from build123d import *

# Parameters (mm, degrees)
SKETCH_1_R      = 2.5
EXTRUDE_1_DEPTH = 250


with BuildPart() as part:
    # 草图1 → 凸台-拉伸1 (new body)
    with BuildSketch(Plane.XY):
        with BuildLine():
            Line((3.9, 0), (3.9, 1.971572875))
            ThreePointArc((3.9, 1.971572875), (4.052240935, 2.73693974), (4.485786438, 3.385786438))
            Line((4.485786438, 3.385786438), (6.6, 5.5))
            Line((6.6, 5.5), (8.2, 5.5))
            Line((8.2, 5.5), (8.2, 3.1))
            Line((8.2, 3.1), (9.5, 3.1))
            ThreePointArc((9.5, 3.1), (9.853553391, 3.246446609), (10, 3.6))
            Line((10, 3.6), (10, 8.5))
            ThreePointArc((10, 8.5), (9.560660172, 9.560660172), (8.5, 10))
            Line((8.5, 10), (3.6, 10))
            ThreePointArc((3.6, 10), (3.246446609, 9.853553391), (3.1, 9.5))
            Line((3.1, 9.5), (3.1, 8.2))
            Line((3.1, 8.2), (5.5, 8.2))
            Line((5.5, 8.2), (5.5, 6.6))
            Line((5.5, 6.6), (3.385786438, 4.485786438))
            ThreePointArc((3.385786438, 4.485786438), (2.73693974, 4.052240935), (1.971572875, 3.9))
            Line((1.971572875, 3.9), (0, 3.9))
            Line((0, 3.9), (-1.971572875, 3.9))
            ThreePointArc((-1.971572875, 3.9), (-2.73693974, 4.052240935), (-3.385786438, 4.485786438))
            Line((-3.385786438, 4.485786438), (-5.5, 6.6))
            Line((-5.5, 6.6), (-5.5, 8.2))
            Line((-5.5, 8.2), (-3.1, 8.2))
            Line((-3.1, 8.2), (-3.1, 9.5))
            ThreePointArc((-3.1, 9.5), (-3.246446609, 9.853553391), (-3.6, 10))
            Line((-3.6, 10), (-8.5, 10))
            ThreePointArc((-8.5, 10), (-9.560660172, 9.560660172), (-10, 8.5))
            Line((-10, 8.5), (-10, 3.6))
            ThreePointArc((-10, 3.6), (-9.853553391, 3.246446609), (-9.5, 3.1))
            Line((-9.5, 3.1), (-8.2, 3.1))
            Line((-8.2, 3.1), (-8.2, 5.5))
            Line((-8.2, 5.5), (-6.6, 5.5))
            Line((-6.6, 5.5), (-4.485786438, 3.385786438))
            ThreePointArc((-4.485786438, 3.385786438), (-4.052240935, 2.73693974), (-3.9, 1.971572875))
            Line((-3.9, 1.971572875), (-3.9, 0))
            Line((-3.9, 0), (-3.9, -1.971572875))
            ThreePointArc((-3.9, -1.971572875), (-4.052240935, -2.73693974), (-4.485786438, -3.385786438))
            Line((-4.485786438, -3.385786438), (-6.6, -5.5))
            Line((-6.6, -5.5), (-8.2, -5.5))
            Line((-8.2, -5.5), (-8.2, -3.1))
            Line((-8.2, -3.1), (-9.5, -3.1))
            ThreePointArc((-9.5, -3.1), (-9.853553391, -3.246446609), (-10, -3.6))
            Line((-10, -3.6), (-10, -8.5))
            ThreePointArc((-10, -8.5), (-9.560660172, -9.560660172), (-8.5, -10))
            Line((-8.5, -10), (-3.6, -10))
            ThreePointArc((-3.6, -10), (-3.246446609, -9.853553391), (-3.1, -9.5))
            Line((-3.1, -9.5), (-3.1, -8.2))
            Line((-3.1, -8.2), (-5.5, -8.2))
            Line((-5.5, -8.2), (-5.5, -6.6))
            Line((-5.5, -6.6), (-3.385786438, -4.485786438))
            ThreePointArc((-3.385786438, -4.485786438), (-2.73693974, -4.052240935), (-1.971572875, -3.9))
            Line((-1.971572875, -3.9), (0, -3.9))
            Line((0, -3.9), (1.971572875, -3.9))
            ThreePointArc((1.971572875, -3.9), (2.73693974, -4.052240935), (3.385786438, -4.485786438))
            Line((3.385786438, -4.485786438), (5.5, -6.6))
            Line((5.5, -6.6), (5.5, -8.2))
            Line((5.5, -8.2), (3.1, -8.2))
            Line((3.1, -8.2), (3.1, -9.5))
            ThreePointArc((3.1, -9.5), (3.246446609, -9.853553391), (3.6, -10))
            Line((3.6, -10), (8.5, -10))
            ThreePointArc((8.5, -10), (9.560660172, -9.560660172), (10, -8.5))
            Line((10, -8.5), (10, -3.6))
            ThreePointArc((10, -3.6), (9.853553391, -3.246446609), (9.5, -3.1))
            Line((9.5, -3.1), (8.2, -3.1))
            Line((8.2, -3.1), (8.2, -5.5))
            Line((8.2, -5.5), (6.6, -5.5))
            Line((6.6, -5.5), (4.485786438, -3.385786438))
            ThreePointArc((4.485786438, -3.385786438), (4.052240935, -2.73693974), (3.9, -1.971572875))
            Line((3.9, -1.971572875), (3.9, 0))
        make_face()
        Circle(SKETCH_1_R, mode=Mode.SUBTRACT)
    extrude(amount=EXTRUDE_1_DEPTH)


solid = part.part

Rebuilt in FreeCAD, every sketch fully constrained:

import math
import FreeCAD as App
import Part
import Sketcher
Q = App.Units.Quantity

doc = App.newDocument("Part")
body = doc.addObject("PartDesign::Body", "Body")

# Sketch on XY plane
sketch1 = body.newObject("Sketcher::SketchObject", "Sketch")
sketch1.AttachmentSupport = (doc.getObject("XY_Plane"), [""])
sketch1.MapMode = "FlatFace"
sketch1.addGeometry([
    Part.ArcOfCircle(Part.Circle(App.Vector(5.9, 1.971573, 0), App.Vector(0, 0, 1), 2), math.radians(135), math.radians(180)),  # 0
    Part.LineSegment(App.Vector(4.485786, 3.385786, 0), App.Vector(6.6, 5.5, 0)),  # 1
    Part.LineSegment(App.Vector(6.6, 5.5, 0), App.Vector(8.2, 5.5, 0)),  # 2
    Part.LineSegment(App.Vector(8.2, 5.5, 0), App.Vector(8.2, 3.1, 0)),  # 3
    Part.LineSegment(App.Vector(8.2, 3.1, 0), App.Vector(9.5, 3.1, 0)),  # 4
    Part.ArcOfCircle(Part.Circle(App.Vector(9.5, 3.6, 0), App.Vector(0, 0, 1), 0.5), math.radians(-90), math.radians(0)),  # 5
    Part.LineSegment(App.Vector(10, 3.6, 0), App.Vector(10, 8.5, 0)),  # 6
    Part.ArcOfCircle(Part.Circle(App.Vector(8.5, 8.5, 0), App.Vector(0, 0, 1), 1.5), math.radians(0), math.radians(90)),  # 7
    Part.LineSegment(App.Vector(8.5, 10, 0), App.Vector(3.6, 10, 0)),  # 8
    Part.ArcOfCircle(Part.Circle(App.Vector(3.6, 9.5, 0), App.Vector(0, 0, 1), 0.5), math.radians(90), math.radians(180)),  # 9
    Part.LineSegment(App.Vector(3.1, 9.5, 0), App.Vector(3.1, 8.2, 0)),  # 10
    Part.LineSegment(App.Vector(3.1, 8.2, 0), App.Vector(5.5, 8.2, 0)),  # 11
    Part.LineSegment(App.Vector(5.5, 8.2, 0), App.Vector(5.5, 6.6, 0)),  # 12
    Part.LineSegment(App.Vector(5.5, 6.6, 0), App.Vector(3.385786, 4.485786, 0)),  # 13
    Part.ArcOfCircle(Part.Circle(App.Vector(1.971573, 5.9, 0), App.Vector(0, 0, 1), 2), math.radians(-90), math.radians(-45)),  # 14
    Part.LineSegment(App.Vector(1.971573, 3.9, 0), App.Vector(-1.971573, 3.9, 0)),  # 15
    Part.ArcOfCircle(Part.Circle(App.Vector(-1.971573, 5.9, 0), App.Vector(0, 0, 1), 2), math.radians(-135), math.radians(-90)),  # 16
    Part.LineSegment(App.Vector(-3.385786, 4.485786, 0), App.Vector(-5.5, 6.6, 0)),  # 17
    Part.LineSegment(App.Vector(-5.5, 6.6, 0), App.Vector(-5.5, 8.2, 0)),  # 18
    Part.LineSegment(App.Vector(-5.5, 8.2, 0), App.Vector(-3.1, 8.2, 0)),  # 19
    Part.LineSegment(App.Vector(-3.1, 8.2, 0), App.Vector(-3.1, 9.5, 0)),  # 20
    Part.ArcOfCircle(Part.Circle(App.Vector(-3.6, 9.5, 0), App.Vector(0, 0, 1), 0.5), math.radians(0), math.radians(90)),  # 21
    Part.LineSegment(App.Vector(-3.6, 10, 0), App.Vector(-8.5, 10, 0)),  # 22
    Part.ArcOfCircle(Part.Circle(App.Vector(-8.5, 8.5, 0), App.Vector(0, 0, 1), 1.5), math.radians(90), math.radians(180)),  # 23
    Part.LineSegment(App.Vector(-10, 8.5, 0), App.Vector(-10, 3.6, 0)),  # 24
    Part.ArcOfCircle(Part.Circle(App.Vector(-9.5, 3.6, 0), App.Vector(0, 0, 1), 0.5), math.radians(180), math.radians(270)),  # 25
    Part.LineSegment(App.Vector(-9.5, 3.1, 0), App.Vector(-8.2, 3.1, 0)),  # 26
    Part.LineSegment(App.Vector(-8.2, 3.1, 0), App.Vector(-8.2, 5.5, 0)),  # 27
    Part.LineSegment(App.Vector(-8.2, 5.5, 0), App.Vector(-6.6, 5.5, 0)),  # 28
    Part.LineSegment(App.Vector(-6.6, 5.5, 0), App.Vector(-4.485786, 3.385786, 0)),  # 29
    Part.ArcOfCircle(Part.Circle(App.Vector(-5.9, 1.971573, 0), App.Vector(0, 0, 1), 2), math.radians(0), math.radians(45)),  # 30
    Part.LineSegment(App.Vector(-3.9, 1.971573, 0), App.Vector(-3.9, -1.971573, 0)),  # 31
    Part.ArcOfCircle(Part.Circle(App.Vector(-5.9, -1.971573, 0), App.Vector(0, 0, 1), 2), math.radians(-45), math.radians(0)),  # 32
    Part.LineSegment(App.Vector(-4.485786, -3.385786, 0), App.Vector(-6.6, -5.5, 0)),  # 33
    Part.LineSegment(App.Vector(-6.6, -5.5, 0), App.Vector(-8.2, -5.5, 0)),  # 34
    Part.LineSegment(App.Vector(-8.2, -5.5, 0), App.Vector(-8.2, -3.1, 0)),  # 35
    Part.LineSegment(App.Vector(-8.2, -3.1, 0), App.Vector(-9.5, -3.1, 0)),  # 36
    Part.ArcOfCircle(Part.Circle(App.Vector(-9.5, -3.6, 0), App.Vector(0, 0, 1), 0.5), math.radians(90), math.radians(180)),  # 37
    Part.LineSegment(App.Vector(-10, -3.6, 0), App.Vector(-10, -8.5, 0)),  # 38
    Part.ArcOfCircle(Part.Circle(App.Vector(-8.5, -8.5, 0), App.Vector(0, 0, 1), 1.5), math.radians(180), math.radians(270)),  # 39
    Part.LineSegment(App.Vector(-8.5, -10, 0), App.Vector(-3.6, -10, 0)),  # 40
    Part.ArcOfCircle(Part.Circle(App.Vector(-3.6, -9.5, 0), App.Vector(0, 0, 1), 0.5), math.radians(-90), math.radians(0)),  # 41
    Part.LineSegment(App.Vector(-3.1, -9.5, 0), App.Vector(-3.1, -8.2, 0)),  # 42
    Part.LineSegment(App.Vector(-3.1, -8.2, 0), App.Vector(-5.5, -8.2, 0)),  # 43
    Part.LineSegment(App.Vector(-5.5, -8.2, 0), App.Vector(-5.5, -6.6, 0)),  # 44
    Part.LineSegment(App.Vector(-5.5, -6.6, 0), App.Vector(-3.385786, -4.485786, 0)),  # 45
    Part.ArcOfCircle(Part.Circle(App.Vector(-1.971573, -5.9, 0), App.Vector(0, 0, 1), 2), math.radians(90), math.radians(135)),  # 46
    Part.LineSegment(App.Vector(-1.971573, -3.9, 0), App.Vector(1.971573, -3.9, 0)),  # 47
    Part.ArcOfCircle(Part.Circle(App.Vector(1.971573, -5.9, 0), App.Vector(0, 0, 1), 2), math.radians(45), math.radians(90)),  # 48
    Part.LineSegment(App.Vector(3.385786, -4.485786, 0), App.Vector(5.5, -6.6, 0)),  # 49
    Part.LineSegment(App.Vector(5.5, -6.6, 0), App.Vector(5.5, -8.2, 0)),  # 50
    Part.LineSegment(App.Vector(5.5, -8.2, 0), App.Vector(3.1, -8.2, 0)),  # 51
    Part.LineSegment(App.Vector(3.1, -8.2, 0), App.Vector(3.1, -9.5, 0)),  # 52
    Part.ArcOfCircle(Part.Circle(App.Vector(3.6, -9.5, 0), App.Vector(0, 0, 1), 0.5), math.radians(180), math.radians(270)),  # 53
    Part.LineSegment(App.Vector(3.6, -10, 0), App.Vector(8.5, -10, 0)),  # 54
    Part.ArcOfCircle(Part.Circle(App.Vector(8.5, -8.5, 0), App.Vector(0, 0, 1), 1.5), math.radians(-90), math.radians(0)),  # 55
    Part.LineSegment(App.Vector(10, -8.5, 0), App.Vector(10, -3.6, 0)),  # 56
    Part.ArcOfCircle(Part.Circle(App.Vector(9.5, -3.6, 0), App.Vector(0, 0, 1), 0.5), math.radians(0), math.radians(90)),  # 57
    Part.LineSegment(App.Vector(9.5, -3.1, 0), App.Vector(8.2, -3.1, 0)),  # 58
    Part.LineSegment(App.Vector(8.2, -3.1, 0), App.Vector(8.2, -5.5, 0)),  # 59
    Part.LineSegment(App.Vector(8.2, -5.5, 0), App.Vector(6.6, -5.5, 0)),  # 60
    Part.LineSegment(App.Vector(6.6, -5.5, 0), App.Vector(4.485786, -3.385786, 0)),  # 61
    Part.ArcOfCircle(Part.Circle(App.Vector(5.9, -1.971573, 0), App.Vector(0, 0, 1), 2), math.radians(180), math.radians(225)),  # 62
    Part.LineSegment(App.Vector(3.9, -1.971573, 0), App.Vector(3.9, 1.971573, 0)),  # 63
    Part.Circle(App.Vector(0, 0, 0), App.Vector(0, 0, 1), 2.5),  # 64
], False)
sketch1.addConstraint([
    Sketcher.Constraint("Tangent", 0, 1, 1, 1),
    Sketcher.Constraint("Coincident", 1, 2, 2, 1),
    Sketcher.Constraint("Coincident", 2, 2, 3, 1),
    Sketcher.Constraint("Coincident", 3, 2, 4, 1),
    Sketcher.Constraint("Tangent", 4, 2, 5, 1),
    Sketcher.Constraint("Tangent", 5, 2, 6, 1),
    Sketcher.Constraint("Tangent", 6, 2, 7, 1),
    Sketcher.Constraint("Tangent", 7, 2, 8, 1),
    Sketcher.Constraint("Tangent", 8, 2, 9, 1),
    Sketcher.Constraint("Tangent", 9, 2, 10, 1),
    Sketcher.Constraint("Coincident", 10, 2, 11, 1),
    Sketcher.Constraint("Coincident", 11, 2, 12, 1),
    Sketcher.Constraint("Coincident", 12, 2, 13, 1),
    Sketcher.Constraint("Tangent", 13, 2, 14, 2),
    Sketcher.Constraint("Tangent", 14, 1, 15, 1),
    Sketcher.Constraint("Tangent", 15, 2, 16, 2),
    Sketcher.Constraint("Tangent", 16, 1, 17, 1),
    Sketcher.Constraint("Coincident", 17, 2, 18, 1),
    Sketcher.Constraint("Coincident", 18, 2, 19, 1),
    Sketcher.Constraint("Coincident", 19, 2, 20, 1),
    Sketcher.Constraint("Tangent", 20, 2, 21, 1),
    Sketcher.Constraint("Tangent", 21, 2, 22, 1),
    Sketcher.Constraint("Tangent", 22, 2, 23, 1),
    Sketcher.Constraint("Tangent", 23, 2, 24, 1),
    Sketcher.Constraint("Tangent", 24, 2, 25, 1),
    Sketcher.Constraint("Tangent", 25, 2, 26, 1),
    Sketcher.Constraint("Coincident", 26, 2, 27, 1),
    Sketcher.Constraint("Coincident", 27, 2, 28, 1),
    Sketcher.Constraint("Coincident", 28, 2, 29, 1),
    Sketcher.Constraint("Tangent", 29, 2, 30, 2),
    Sketcher.Constraint("Tangent", 30, 1, 31, 1),
    Sketcher.Constraint("Tangent", 31, 2, 32, 2),
    Sketcher.Constraint("Tangent", 32, 1, 33, 1),
    Sketcher.Constraint("Coincident", 33, 2, 34, 1),
    Sketcher.Constraint("Coincident", 34, 2, 35, 1),
    Sketcher.Constraint("Coincident", 35, 2, 36, 1),
    Sketcher.Constraint("Tangent", 36, 2, 37, 1),
    Sketcher.Constraint("Tangent", 37, 2, 38, 1),
    Sketcher.Constraint("Tangent", 38, 2, 39, 1),
    Sketcher.Constraint("Tangent", 39, 2, 40, 1),
    Sketcher.Constraint("Tangent", 40, 2, 41, 1),
    Sketcher.Constraint("Tangent", 41, 2, 42, 1),
    Sketcher.Constraint("Coincident", 42, 2, 43, 1),
    Sketcher.Constraint("Coincident", 43, 2, 44, 1),
    Sketcher.Constraint("Coincident", 44, 2, 45, 1),
    Sketcher.Constraint("Tangent", 45, 2, 46, 2),
    Sketcher.Constraint("Tangent", 46, 1, 47, 1),
    Sketcher.Constraint("Tangent", 47, 2, 48, 2),
    Sketcher.Constraint("Tangent", 48, 1, 49, 1),
    Sketcher.Constraint("Coincident", 49, 2, 50, 1),
    Sketcher.Constraint("Coincident", 50, 2, 51, 1),
    Sketcher.Constraint("Coincident", 51, 2, 52, 1),
    Sketcher.Constraint("Tangent", 52, 2, 53, 1),
    Sketcher.Constraint("Tangent", 53, 2, 54, 1),
    Sketcher.Constraint("Tangent", 54, 2, 55, 1),
    Sketcher.Constraint("Tangent", 55, 2, 56, 1),
    Sketcher.Constraint("Tangent", 56, 2, 57, 1),
    Sketcher.Constraint("Tangent", 57, 2, 58, 1),
    Sketcher.Constraint("Coincident", 58, 2, 59, 1),
    Sketcher.Constraint("Coincident", 59, 2, 60, 1),
    Sketcher.Constraint("Coincident", 60, 2, 61, 1),
    Sketcher.Constraint("Tangent", 61, 2, 62, 2),
    Sketcher.Constraint("Tangent", 62, 1, 63, 1),
    Sketcher.Constraint("Tangent", 63, 2, 0, 2),
    Sketcher.Constraint("Horizontal", 2),
    Sketcher.Constraint("Vertical", 3),
    Sketcher.Constraint("Horizontal", 4),
    Sketcher.Constraint("Vertical", 6),
    Sketcher.Constraint("Horizontal", 8),
    Sketcher.Constraint("Vertical", 10),
    Sketcher.Constraint("Horizontal", 11),
    Sketcher.Constraint("Vertical", 12),
    Sketcher.Constraint("Horizontal", 15),
    Sketcher.Constraint("Vertical", 18),
    Sketcher.Constraint("Horizontal", 19),
    Sketcher.Constraint("Vertical", 20),
    Sketcher.Constraint("Horizontal", 22),
    Sketcher.Constraint("Vertical", 24),
    Sketcher.Constraint("Horizontal", 26),
    Sketcher.Constraint("Vertical", 27),
    Sketcher.Constraint("Horizontal", 28),
    Sketcher.Constraint("Vertical", 31),
    Sketcher.Constraint("Horizontal", 34),
    Sketcher.Constraint("Vertical", 35),
    Sketcher.Constraint("Horizontal", 36),
    Sketcher.Constraint("Vertical", 38),
    Sketcher.Constraint("Horizontal", 40),
    Sketcher.Constraint("Vertical", 42),
    Sketcher.Constraint("Horizontal", 43),
    Sketcher.Constraint("Vertical", 44),
    Sketcher.Constraint("Horizontal", 47),
    Sketcher.Constraint("Vertical", 50),
    Sketcher.Constraint("Horizontal", 51),
    Sketcher.Constraint("Vertical", 52),
    Sketcher.Constraint("Horizontal", 54),
    Sketcher.Constraint("Vertical", 56),
    Sketcher.Constraint("Horizontal", 58),
    Sketcher.Constraint("Vertical", 59),
    Sketcher.Constraint("Horizontal", 60),
    Sketcher.Constraint("Vertical", 63),
    Sketcher.Constraint("Coincident", 64, 3, -1, 1),
    Sketcher.Constraint("Equal", 5, 9),
    Sketcher.Constraint("Equal", 0, 14),
    Sketcher.Constraint("Equal", 14, 16),
    Sketcher.Constraint("Equal", 9, 21),
    Sketcher.Constraint("Equal", 7, 23),
    Sketcher.Constraint("Equal", 21, 25),
    Sketcher.Constraint("Equal", 16, 30),
    Sketcher.Constraint("Equal", 30, 32),
    Sketcher.Constraint("Equal", 25, 37),
    Sketcher.Constraint("Equal", 23, 39),
    Sketcher.Constraint("Equal", 37, 41),
    Sketcher.Constraint("Equal", 32, 46),
    Sketcher.Constraint("Equal", 46, 48),
    Sketcher.Constraint("Equal", 41, 53),
    Sketcher.Constraint("Equal", 39, 55),
    Sketcher.Constraint("Equal", 53, 57),
    Sketcher.Constraint("Equal", 48, 62),
    Sketcher.Constraint("Symmetric", 0, 3, 32, 3, -1, 1),
    Sketcher.Constraint("Symmetric", 5, 3, 37, 3, -1, 1),
    Sketcher.Constraint("Symmetric", 9, 3, 41, 3, -1, 1),
    Sketcher.Constraint("Symmetric", 14, 3, 46, 3, -1, 1),
    Sketcher.Constraint("Symmetric", 21, 3, 53, 3, -1, 1),
    Sketcher.Constraint("Symmetric", 25, 3, 57, 3, -1, 1),
    Sketcher.Constraint("Symmetric", 1, 2, 33, 2, -1, 1),
    Sketcher.Constraint("Symmetric", 11, 2, 43, 2, -1, 1),
    Sketcher.Constraint("Symmetric", 16, 1, 48, 1, -1, 1),
    Sketcher.Constraint("Symmetric", 18, 2, 50, 2, -1, 1),
    Sketcher.Constraint("Symmetric", 27, 2, 59, 2, -1, 1),
    Sketcher.Constraint("Symmetric", 29, 2, 61, 2, -1, 1),
    Sketcher.Constraint("Symmetric", 9, 3, 21, 3, -2),
    Sketcher.Constraint("Symmetric", 5, 3, 25, 3, -2),
    Sketcher.Constraint("Symmetric", 13, 2, 16, 1, -2),
    Sketcher.Constraint("Symmetric", 11, 2, 18, 2, -2),
    Sketcher.Constraint("Symmetric", 2, 2, 27, 2, -2),
    Sketcher.Constraint("Symmetric", 0, 1, 29, 2, -2),
    Sketcher.Constraint("Parallel", 1, 13),
    Sketcher.Constraint("Perpendicular", 13, 17),
    Sketcher.Constraint("Parallel", 33, 45),
    Sketcher.Constraint("Vertical", 27, 2, 34, 2),
    Sketcher.Constraint("Equal", 51, 3),
    Sketcher.Constraint("Equal", 54, 6),
    Sketcher.Constraint("Equal", 58, 10),
    Sketcher.Constraint("Equal", 60, 12),
    Sketcher.Constraint("Equal", 47, 31),
    Sketcher.Constraint("Equal", 1, 13),
    Sketcher.Constraint("Diameter", 64, Q("5 mm")),
    Sketcher.Constraint("Radius", 0, Q("2 mm")),
    Sketcher.Constraint("Radius", 5, Q("0.5 mm")),
    Sketcher.Constraint("Radius", 7, Q("1.5 mm")),
    Sketcher.Constraint("DistanceX", 2, 1, 2, 2, Q("1.6 mm")),
    Sketcher.Constraint("DistanceX", 4, 1, 4, 2, Q("1.3 mm")),
    Sketcher.Constraint("DistanceX", 8, 2, 8, 1, Q("4.9 mm")),
    Sketcher.Constraint("DistanceX", 11, 1, 11, 2, Q("2.4 mm")),
    Sketcher.Constraint("DistanceX", -1, 1, 5, 2, Q("10 mm")),
    Sketcher.Constraint("DistanceX", -1, 1, 0, 3, Q("5.9 mm")),
])
pad1 = body.newObject("PartDesign::Pad", "Pad")
pad1.Profile = sketch1
pad1.Length = 250

doc.recompute()
